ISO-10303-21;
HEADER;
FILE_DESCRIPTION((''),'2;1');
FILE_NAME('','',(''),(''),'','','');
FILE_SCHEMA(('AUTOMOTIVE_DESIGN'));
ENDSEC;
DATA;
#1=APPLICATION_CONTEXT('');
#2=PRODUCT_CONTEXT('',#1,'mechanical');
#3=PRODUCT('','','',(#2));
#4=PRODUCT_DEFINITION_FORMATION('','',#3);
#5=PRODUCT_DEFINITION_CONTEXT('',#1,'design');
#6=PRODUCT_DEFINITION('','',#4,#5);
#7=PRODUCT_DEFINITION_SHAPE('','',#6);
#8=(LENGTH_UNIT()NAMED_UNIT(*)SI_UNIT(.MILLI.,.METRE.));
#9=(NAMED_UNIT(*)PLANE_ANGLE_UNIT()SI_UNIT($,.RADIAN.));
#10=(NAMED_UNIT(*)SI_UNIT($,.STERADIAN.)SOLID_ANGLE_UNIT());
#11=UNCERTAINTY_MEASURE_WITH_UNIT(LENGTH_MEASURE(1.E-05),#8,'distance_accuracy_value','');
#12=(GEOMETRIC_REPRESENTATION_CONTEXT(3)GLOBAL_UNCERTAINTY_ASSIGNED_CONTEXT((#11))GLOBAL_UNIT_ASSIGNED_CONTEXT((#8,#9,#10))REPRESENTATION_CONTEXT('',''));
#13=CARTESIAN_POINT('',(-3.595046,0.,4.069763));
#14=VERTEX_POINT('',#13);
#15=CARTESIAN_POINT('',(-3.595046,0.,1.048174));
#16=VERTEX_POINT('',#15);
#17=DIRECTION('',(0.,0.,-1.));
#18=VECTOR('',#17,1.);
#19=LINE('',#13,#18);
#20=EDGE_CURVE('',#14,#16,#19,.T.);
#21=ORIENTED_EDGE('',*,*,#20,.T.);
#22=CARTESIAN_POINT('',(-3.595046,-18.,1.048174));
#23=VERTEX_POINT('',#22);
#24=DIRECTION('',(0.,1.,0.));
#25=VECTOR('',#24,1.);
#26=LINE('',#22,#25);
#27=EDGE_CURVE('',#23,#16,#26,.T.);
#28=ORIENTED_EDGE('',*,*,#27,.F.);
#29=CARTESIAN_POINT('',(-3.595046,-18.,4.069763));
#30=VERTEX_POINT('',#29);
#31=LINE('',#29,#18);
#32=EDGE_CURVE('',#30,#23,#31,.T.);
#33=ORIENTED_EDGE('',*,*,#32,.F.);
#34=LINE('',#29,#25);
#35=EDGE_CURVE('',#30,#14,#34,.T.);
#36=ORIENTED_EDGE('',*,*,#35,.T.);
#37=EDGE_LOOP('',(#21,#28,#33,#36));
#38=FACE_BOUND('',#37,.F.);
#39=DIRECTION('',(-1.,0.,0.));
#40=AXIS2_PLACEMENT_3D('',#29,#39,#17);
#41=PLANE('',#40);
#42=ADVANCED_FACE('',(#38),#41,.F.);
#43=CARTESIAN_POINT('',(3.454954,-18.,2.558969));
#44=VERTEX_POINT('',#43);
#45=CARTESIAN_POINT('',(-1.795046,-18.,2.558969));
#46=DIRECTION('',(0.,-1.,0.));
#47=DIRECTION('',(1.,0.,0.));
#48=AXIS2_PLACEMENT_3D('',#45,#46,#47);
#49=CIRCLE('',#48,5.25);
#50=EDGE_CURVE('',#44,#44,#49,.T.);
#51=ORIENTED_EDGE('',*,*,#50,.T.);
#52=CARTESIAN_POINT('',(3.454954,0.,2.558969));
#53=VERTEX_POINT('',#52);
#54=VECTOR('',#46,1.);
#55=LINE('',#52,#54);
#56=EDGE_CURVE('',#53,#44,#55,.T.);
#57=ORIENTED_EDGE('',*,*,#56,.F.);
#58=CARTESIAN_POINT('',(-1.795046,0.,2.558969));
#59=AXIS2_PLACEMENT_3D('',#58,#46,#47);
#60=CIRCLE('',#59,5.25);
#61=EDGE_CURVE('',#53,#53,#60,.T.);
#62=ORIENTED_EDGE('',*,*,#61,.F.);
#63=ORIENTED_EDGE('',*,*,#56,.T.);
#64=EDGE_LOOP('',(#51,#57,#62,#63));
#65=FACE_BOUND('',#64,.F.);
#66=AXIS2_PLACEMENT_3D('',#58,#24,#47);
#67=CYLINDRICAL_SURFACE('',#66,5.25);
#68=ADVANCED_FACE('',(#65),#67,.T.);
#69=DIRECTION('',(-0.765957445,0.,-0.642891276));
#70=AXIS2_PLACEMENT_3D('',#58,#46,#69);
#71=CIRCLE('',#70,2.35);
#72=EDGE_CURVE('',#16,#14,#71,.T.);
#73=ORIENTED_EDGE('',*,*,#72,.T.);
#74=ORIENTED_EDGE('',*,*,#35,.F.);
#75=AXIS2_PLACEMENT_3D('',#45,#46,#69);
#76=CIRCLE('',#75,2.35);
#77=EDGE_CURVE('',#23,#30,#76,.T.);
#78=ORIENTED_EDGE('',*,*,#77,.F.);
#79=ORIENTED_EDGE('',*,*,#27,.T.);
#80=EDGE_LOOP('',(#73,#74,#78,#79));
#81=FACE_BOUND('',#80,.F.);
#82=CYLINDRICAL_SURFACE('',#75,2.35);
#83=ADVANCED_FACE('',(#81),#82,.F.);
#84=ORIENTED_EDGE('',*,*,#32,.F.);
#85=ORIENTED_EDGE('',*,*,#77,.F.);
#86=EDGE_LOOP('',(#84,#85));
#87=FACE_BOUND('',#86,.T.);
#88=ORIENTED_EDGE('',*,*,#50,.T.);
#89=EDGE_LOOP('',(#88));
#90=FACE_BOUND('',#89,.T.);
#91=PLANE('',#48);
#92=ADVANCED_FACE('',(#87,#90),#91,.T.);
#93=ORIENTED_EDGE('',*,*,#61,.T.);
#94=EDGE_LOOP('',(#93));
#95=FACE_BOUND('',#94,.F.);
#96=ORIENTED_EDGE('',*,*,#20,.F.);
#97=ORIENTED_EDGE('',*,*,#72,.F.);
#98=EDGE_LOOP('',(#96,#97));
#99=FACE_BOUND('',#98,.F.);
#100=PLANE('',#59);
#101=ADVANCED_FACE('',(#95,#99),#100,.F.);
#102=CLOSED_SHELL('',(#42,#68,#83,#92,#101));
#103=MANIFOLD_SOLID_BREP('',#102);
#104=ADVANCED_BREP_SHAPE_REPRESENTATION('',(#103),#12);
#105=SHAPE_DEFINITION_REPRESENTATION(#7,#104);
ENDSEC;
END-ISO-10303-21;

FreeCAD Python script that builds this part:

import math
import FreeCAD as App
import Part
import Sketcher

V = App.Vector
Q = App.Units.Quantity

doc = App.newDocument("Part")
params = doc.addObject("Spreadsheet::Sheet", "Params")
for row, (alias, value) in enumerate([
    ("sketch1_diameter", "10.5 mm"),
    ("pad1_length", "18 mm"),
    ("sketch2_radius", "2.35 mm"),
], start=1):
    params.set(f"A{row}", alias)
    params.set(f"B{row}", "=" + value)
    params.setAlias(f"B{row}", alias)

body = doc.addObject("PartDesign::Body", "Body")

# Sketch on XZ plane
sketch1 = body.newObject("Sketcher::SketchObject", "Sketch")
sketch1.AttachmentSupport = (doc.getObject("XZ_Plane"), [""])
sketch1.MapMode = "FlatFace"
sketch1.addGeometry(Part.Circle(V(-2, 3, 0), V(0, 0, 1), 5), False)
sketch1.addConstraint([
    Sketcher.Constraint("Diameter", 0, Q("10.5 mm")),
    Sketcher.Constraint("DistanceY", -1, 1, 0, 3, Q("2.558969 mm")),
    Sketcher.Constraint("DistanceX", 0, 3, -1, 1, Q("1.795046 mm")),
])
sketch1.setExpression("Constraints[0]", "Params.sketch1_diameter")
pad1 = body.newObject("PartDesign::Pad", "Pad")
pad1.Profile = sketch1
pad1.setExpression("Length", "Params.pad1_length")

# Sketch on XZ plane
sketch2 = body.newObject("Sketcher::SketchObject", "Sketch001")
sketch2.AttachmentSupport = (doc.getObject("XZ_Plane"), [""])
sketch2.MapMode = "FlatFace"
sketch2.AttachmentOffset = App.Placement(V(0, 0, 18), App.Rotation())
sketch2.addGeometry([
    Part.LineSegment(V(-3.6, 4.1, 0), V(-3.6, 1, 0)),
    Part.ArcOfCircle(Part.Circle(V(-1.8, 2.6, 0), V(0, 0, 1), 2.4), math.radians(-140), math.radians(140)),
], False)
sketch2.addConstraint([
    Sketcher.Constraint("Coincident", 0, 1, 1, 2),
    Sketcher.Constraint("Coincident", 1, 1, 0, 2),
    Sketcher.Constraint("Vertical", 0),
    Sketcher.Constraint("Radius", 1, Q("2.35 mm")),
    Sketcher.Constraint("DistanceX", 0, 1, 1, 3, Q("1.8 mm")),
    Sketcher.Constraint("DistanceY", -1, 1, 1, 3, Q("2.558969 mm")),
    Sketcher.Constraint("DistanceX", 1, 3, -1, 1, Q("1.795046 mm")),
])
sketch2.setExpression("Constraints[3]", "Params.sketch2_radius")
pocket1 = body.newObject("PartDesign::Pocket", "Pocket")
pocket1.Profile = sketch2
pocket1.Type = "ThroughAll"

doc.recompute()
